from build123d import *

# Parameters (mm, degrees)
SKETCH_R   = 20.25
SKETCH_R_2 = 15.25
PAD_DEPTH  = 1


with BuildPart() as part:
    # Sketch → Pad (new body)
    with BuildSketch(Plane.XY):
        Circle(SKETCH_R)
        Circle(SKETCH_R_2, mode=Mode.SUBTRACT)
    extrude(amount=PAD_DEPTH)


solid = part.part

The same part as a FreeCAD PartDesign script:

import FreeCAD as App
import Part
import Sketcher
from FreeCAD import Vector

doc = App.newDocument("Part")
params = doc.addObject("Spreadsheet::Sheet", "Params")
for row, (alias, value) in enumerate([
    ("sketch1_diameter", "40.5 mm"),
    ("sketch1_diameter2", "30.5 mm"),
    ("pad1_length", "1 mm"),
], start=1):
    params.set(f"A{row}", alias)
    params.set(f"B{row}", "=" + value)
    params.setAlias(f"B{row}", alias)

body = doc.addObject("PartDesign::Body", "Body")

# Sketch on XY plane
sketch1 = body.newObject("Sketcher::SketchObject", "Sketch")
sketch1.AttachmentSupport = (doc.getObject("XY_Plane"), [""])
sketch1.MapMode = "FlatFace"
sketch1.addGeometry(Part.Circle(Vector(0, 0, 0), Vector(0, 0, 1), 20), False)
sketch1.addGeometry(Part.Circle(Vector(0, 0, 0), Vector(0, 0, 1), 15), False)
sketch1.addConstraint(Sketcher.Constraint("Coincident", 0, 3, -1, 1))
sketch1.addConstraint(Sketcher.Constraint("Coincident", 1, 3, -1, 1))
sketch1.addConstraint(Sketcher.Constraint("Diameter", 0, 40.5))
sketch1.addConstraint(Sketcher.Constraint("Diameter", 1, 30.5))
sketch1.setExpression("Constraints[2]", "Params.sketch1_diameter")
sketch1.setExpression("Constraints[3]", "Params.sketch1_diameter2")
pad1 = body.newObject("PartDesign::Pad", "Pad")
pad1.Profile = sketch1
pad1.setExpression("Length", "Params.pad1_length")

doc.recompute()
